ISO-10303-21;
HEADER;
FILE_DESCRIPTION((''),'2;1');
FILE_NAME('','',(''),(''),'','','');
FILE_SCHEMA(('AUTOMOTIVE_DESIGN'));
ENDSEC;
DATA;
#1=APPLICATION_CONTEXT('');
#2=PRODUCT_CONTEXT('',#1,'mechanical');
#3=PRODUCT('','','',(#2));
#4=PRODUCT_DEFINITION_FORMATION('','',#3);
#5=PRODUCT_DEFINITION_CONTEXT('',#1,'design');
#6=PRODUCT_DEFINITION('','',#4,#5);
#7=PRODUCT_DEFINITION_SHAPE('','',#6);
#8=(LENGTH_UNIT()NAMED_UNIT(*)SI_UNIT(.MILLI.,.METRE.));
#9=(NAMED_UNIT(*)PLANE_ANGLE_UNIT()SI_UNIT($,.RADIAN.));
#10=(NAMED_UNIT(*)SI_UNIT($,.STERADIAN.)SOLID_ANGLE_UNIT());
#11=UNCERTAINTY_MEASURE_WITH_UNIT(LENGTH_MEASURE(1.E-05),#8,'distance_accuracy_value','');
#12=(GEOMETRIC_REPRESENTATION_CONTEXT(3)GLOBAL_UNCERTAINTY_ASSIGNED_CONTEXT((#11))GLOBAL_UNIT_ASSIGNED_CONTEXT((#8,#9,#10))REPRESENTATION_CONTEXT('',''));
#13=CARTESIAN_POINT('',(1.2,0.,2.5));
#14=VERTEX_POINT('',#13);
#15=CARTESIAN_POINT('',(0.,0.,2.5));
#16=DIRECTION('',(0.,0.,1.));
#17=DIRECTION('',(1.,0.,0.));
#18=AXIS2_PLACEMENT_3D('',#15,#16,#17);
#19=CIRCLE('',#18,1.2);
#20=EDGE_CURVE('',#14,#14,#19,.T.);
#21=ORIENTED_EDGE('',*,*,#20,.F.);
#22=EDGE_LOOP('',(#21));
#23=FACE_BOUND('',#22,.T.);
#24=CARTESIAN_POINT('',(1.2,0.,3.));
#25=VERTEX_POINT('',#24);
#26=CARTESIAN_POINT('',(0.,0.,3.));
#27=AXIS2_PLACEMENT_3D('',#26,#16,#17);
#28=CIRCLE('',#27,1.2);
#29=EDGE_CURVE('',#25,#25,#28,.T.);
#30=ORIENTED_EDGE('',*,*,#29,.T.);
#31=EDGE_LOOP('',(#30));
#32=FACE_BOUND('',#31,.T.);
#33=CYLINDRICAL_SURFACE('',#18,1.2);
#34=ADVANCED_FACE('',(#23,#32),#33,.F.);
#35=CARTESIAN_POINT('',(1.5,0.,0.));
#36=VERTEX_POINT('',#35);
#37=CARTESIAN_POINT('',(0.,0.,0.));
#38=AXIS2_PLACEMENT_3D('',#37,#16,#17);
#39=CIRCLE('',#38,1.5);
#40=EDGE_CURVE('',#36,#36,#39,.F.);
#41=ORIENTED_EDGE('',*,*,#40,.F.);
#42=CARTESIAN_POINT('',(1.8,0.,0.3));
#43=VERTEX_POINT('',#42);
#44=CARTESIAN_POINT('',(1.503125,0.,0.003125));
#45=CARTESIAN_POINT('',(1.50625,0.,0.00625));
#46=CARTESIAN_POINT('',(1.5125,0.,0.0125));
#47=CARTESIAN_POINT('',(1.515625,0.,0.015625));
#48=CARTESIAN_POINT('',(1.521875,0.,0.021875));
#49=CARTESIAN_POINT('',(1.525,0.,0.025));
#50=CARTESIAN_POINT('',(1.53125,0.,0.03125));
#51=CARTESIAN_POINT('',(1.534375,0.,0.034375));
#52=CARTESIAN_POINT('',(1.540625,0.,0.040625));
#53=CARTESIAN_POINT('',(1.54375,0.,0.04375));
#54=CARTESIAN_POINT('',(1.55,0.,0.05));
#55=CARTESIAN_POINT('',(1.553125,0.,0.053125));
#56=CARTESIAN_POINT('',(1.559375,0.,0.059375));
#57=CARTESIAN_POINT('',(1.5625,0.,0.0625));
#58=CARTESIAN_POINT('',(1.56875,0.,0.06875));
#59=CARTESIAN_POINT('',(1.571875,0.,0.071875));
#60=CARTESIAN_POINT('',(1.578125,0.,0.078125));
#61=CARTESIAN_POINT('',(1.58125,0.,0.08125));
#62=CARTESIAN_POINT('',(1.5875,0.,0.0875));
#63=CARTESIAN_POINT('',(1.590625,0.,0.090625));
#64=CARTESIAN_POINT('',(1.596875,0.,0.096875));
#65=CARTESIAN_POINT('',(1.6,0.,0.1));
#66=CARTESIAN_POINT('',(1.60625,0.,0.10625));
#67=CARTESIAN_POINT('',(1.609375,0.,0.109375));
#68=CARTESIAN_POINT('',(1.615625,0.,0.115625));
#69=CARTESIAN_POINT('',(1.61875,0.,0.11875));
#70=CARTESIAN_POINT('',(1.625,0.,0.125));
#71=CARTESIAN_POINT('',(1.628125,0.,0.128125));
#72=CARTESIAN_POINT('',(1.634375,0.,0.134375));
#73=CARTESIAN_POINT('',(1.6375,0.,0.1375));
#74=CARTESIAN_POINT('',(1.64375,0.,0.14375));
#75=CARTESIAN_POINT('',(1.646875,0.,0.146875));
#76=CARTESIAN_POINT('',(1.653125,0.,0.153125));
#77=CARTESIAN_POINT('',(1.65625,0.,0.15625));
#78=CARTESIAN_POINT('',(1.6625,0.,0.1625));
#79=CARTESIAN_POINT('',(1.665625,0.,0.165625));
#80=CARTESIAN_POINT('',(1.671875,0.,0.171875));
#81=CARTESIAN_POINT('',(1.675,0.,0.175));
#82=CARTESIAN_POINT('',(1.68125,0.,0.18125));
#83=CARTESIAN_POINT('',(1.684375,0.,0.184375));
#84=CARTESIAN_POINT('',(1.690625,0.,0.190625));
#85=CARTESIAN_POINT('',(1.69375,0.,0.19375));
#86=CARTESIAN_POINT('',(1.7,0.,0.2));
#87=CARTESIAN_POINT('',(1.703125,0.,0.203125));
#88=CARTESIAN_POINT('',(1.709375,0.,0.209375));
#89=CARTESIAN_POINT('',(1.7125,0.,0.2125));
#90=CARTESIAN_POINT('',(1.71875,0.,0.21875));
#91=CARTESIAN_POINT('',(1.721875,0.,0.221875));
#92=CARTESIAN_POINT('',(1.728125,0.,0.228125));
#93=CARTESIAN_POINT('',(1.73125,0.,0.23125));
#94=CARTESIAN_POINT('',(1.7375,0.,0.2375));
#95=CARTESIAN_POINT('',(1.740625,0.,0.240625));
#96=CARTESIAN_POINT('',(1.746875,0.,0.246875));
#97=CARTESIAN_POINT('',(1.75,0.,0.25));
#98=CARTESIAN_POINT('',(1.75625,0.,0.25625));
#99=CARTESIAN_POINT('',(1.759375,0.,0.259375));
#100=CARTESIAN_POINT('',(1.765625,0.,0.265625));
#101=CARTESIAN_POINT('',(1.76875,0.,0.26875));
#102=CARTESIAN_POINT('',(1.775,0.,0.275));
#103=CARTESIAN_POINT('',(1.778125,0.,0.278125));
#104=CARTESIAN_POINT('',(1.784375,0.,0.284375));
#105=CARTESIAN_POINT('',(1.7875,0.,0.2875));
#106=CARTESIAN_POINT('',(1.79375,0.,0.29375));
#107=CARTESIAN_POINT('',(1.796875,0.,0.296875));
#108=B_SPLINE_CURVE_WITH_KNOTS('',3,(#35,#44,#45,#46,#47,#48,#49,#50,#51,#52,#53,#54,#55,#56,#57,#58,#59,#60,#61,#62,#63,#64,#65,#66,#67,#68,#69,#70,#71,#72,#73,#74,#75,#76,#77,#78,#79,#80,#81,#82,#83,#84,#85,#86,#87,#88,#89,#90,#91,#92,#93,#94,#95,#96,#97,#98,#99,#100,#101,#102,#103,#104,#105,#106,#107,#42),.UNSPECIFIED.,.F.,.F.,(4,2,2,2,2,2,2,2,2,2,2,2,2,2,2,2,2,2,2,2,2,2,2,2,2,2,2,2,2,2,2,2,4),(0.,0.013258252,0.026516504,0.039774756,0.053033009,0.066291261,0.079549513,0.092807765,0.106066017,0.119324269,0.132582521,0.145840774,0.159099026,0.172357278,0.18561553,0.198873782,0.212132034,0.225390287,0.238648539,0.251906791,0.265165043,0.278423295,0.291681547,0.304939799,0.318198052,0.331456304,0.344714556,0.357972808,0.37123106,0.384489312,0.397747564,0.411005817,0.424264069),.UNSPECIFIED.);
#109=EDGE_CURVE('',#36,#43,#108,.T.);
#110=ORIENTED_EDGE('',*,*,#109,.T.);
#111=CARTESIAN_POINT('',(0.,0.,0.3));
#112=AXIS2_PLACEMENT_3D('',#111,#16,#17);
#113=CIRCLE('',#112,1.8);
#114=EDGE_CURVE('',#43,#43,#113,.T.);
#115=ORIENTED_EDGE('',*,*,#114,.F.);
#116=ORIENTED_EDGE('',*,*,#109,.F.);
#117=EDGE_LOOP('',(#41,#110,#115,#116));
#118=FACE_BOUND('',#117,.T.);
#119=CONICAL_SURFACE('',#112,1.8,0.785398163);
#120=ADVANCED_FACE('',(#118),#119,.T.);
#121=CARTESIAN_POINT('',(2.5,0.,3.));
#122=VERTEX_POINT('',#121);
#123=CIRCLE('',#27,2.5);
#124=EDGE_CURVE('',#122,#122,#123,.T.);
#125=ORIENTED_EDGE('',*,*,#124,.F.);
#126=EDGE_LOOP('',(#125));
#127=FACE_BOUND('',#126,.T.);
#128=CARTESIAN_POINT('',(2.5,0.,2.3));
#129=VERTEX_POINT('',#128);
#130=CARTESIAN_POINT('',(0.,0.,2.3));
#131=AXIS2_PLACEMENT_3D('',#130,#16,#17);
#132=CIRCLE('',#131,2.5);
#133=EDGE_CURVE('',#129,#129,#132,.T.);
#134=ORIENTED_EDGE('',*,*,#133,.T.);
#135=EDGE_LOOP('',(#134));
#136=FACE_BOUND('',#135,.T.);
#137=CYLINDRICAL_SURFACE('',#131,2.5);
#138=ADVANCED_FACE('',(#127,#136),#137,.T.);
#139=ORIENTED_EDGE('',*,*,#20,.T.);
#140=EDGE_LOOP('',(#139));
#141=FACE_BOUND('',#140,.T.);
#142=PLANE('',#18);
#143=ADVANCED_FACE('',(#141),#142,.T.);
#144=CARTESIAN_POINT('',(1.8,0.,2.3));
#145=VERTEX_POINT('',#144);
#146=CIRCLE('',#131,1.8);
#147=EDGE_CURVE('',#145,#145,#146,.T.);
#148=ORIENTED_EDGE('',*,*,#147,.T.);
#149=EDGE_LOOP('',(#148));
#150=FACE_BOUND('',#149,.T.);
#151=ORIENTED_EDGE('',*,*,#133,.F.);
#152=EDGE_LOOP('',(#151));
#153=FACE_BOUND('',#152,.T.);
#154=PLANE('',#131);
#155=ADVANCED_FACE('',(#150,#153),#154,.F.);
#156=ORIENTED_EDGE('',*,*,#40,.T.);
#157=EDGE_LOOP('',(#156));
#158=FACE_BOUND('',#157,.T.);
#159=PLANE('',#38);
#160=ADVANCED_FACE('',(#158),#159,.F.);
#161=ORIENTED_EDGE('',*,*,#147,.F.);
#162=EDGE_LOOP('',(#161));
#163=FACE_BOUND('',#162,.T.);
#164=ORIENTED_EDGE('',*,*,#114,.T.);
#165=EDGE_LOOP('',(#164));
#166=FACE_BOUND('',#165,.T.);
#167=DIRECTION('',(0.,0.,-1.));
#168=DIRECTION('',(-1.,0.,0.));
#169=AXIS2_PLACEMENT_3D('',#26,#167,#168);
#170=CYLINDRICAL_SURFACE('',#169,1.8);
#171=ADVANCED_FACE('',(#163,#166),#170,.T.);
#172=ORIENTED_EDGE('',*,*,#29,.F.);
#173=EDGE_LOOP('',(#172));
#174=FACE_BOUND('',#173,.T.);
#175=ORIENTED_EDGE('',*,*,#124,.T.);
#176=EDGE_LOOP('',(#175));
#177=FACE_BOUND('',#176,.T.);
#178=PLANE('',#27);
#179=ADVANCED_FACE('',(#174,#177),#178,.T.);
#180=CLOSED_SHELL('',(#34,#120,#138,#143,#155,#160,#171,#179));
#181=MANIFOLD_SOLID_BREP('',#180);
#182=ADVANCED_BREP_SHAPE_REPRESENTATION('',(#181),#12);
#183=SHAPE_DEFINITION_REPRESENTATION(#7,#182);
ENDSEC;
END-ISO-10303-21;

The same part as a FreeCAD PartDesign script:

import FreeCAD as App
import Part
import Sketcher
Q = App.Units.Quantity


def edges_at(feature, points):
    """Names of the edges that pass closest to the given points."""
    edges = feature.Shape.Edges
    near = lambda p: min(range(len(edges)), key=lambda i: edges[i].distToShape(Part.Vertex(*p))[0])
    return sorted({f"Edge{near(p) + 1}" for p in points})

doc = App.newDocument("Part")
body = doc.addObject("PartDesign::Body", "Body")

sketch1 = body.newObject("Sketcher::SketchObject", "Sketch")
sketch1.AttachmentSupport = (doc.getObject("XY_Plane"), [""])
sketch1.MapMode = "FlatFace"
sketch1.addGeometry(Part.Circle(App.Vector(0, 0, 0), App.Vector(0, 0, 1), 1.8), False)
sketch1.addConstraint([
    Sketcher.Constraint("Coincident", 0, 3, -1, 1),
    Sketcher.Constraint("Diameter", 0, Q("3.6 mm")),
])
pad1 = body.newObject("PartDesign::Pad", "Pad")
pad1.Profile = sketch1
pad1.Length = 3

sketch2 = body.newObject("Sketcher::SketchObject", "Sketch001")
sketch2.AttachmentSupport = (doc.getObject("XY_Plane"), [""])
sketch2.MapMode = "FlatFace"
sketch2.AttachmentOffset = App.Placement(App.Vector(0, 0, 2.3), App.Rotation())
sketch2.addGeometry([
    Part.Circle(App.Vector(0, 0, 0), App.Vector(0, 0, 1), 2.5),
    Part.Circle(App.Vector(0, 0, 0), App.Vector(0, 0, 1), 1.8),
], False)
sketch2.addConstraint([
    Sketcher.Constraint("Coincident", 0, 3, -1, 1),
    Sketcher.Constraint("Coincident", 1, 3, -1, 1),
    Sketcher.Constraint("Diameter", 0, Q("5 mm")),
    Sketcher.Constraint("Diameter", 1, Q("3.6 mm")),
])
pad2 = body.newObject("PartDesign::Pad", "Pad001")
pad2.Profile = sketch2
pad2.Length = 0.7

sketch3 = body.newObject("Sketcher::SketchObject", "Sketch002")
sketch3.AttachmentSupport = (doc.getObject("XY_Plane"), [""])
sketch3.MapMode = "FlatFace"
sketch3.AttachmentOffset = App.Placement(App.Vector(0, 0, 3), App.Rotation())
sketch3.addGeometry(Part.Circle(App.Vector(0, 0, 0), App.Vector(0, 0, 1), 1.2), False)
sketch3.addConstraint([
    Sketcher.Constraint("Coincident", 0, 3, -1, 1),
    Sketcher.Constraint("Diameter", 0, Q("2.4 mm")),
])
pocket1 = body.newObject("PartDesign::Pocket", "Pocket")
pocket1.Profile = sketch3
pocket1.Length = 0.5
doc.recompute()

chamfer = body.newObject("PartDesign::Chamfer", "Chamfer")
chamfer.Base = (pocket1, edges_at(pocket1, [(-1.8, 0, 0)]))
chamfer.Size = 0.3

doc.recompute()
